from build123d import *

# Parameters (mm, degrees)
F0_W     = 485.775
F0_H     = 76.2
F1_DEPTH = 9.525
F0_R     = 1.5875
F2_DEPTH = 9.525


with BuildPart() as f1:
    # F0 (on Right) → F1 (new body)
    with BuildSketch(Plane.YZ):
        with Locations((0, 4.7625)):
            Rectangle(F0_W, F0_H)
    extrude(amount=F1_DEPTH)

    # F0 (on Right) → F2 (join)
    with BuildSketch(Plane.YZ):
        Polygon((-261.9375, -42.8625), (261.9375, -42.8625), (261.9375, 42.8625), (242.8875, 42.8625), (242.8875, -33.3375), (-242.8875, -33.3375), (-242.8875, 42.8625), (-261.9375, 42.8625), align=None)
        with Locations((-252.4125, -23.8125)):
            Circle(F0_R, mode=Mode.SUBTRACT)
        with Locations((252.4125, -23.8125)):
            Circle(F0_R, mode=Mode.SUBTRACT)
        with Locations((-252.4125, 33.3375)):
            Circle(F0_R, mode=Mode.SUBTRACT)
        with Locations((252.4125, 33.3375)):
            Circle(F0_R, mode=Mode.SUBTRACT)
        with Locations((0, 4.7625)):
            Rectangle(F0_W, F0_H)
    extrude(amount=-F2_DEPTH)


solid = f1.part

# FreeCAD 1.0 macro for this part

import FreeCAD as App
import Part
import Sketcher
from FreeCAD import Vector
Q = App.Units.Quantity

doc = App.newDocument("Part")
body = doc.addObject("PartDesign::Body", "Body")

sketch1 = doc.addObject("Sketcher::SketchObject", "Sketch")
body.addObject(sketch1)
sketch1.AttachmentSupport = (doc.YZ_Plane, [""])
sketch1.MapMode = "FlatFace"
sketch1.addGeometry([
    Part.LineSegment(Vector(-243, 43, 0), Vector(-243, -33, 0)),
    Part.LineSegment(Vector(-243, -33, 0), Vector(243, -33, 0)),
    Part.LineSegment(Vector(243, -33, 0), Vector(243, 43, 0)),
    Part.LineSegment(Vector(243, 43, 0), Vector(-243, 43, 0)),
], False)
sketch1.addConstraint([
    Sketcher.Constraint("Coincident", 0, 2, 1, 1),
    Sketcher.Constraint("Coincident", 1, 2, 2, 1),
    Sketcher.Constraint("Coincident", 2, 2, 3, 1),
    Sketcher.Constraint("Coincident", 3, 2, 0, 1),
    Sketcher.Constraint("Vertical", 0),
    Sketcher.Constraint("Horizontal", 1),
    Sketcher.Constraint("Vertical", 2),
    Sketcher.Constraint("Horizontal", 3),
    Sketcher.Constraint("DistanceY", 0, 2, 0, 1, Q("3 in")),
    Sketcher.Constraint("DistanceX", 1, 1, 1, 2, Q("19.125 in")),
    Sketcher.Constraint("DistanceX", 0, 2, -1, 1, Q("9.5625 in")),
    Sketcher.Constraint("DistanceY", 0, 2, -1, 1, Q("1.3125 in")),
])
pad1 = doc.addObject("PartDesign::Pad", "Pad")
body.addObject(pad1)
pad1.Profile = sketch1
pad1.Length = Q("0.375 in")

sketch2 = doc.addObject("Sketcher::SketchObject", "Sketch001")
body.addObject(sketch2)
sketch2.AttachmentSupport = (doc.YZ_Plane, [""])
sketch2.MapMode = "FlatFace"
sketch2.addGeometry([
    Part.LineSegment(Vector(-261.9, -42.9, 0), Vector(261.9, -42.9, 0)),
    Part.LineSegment(Vector(261.9, -42.9, 0), Vector(261.9, 42.9, 0)),
    Part.LineSegment(Vector(261.9, 42.9, 0), Vector(-261.9, 42.9, 0)),
    Part.LineSegment(Vector(-261.9, 42.9, 0), Vector(-261.9, -42.9, 0)),
    Part.Circle(Vector(-252.4, -23.8, 0), Vector(0, 0, 1), 1.6),
    Part.Circle(Vector(252.4, -23.8, 0), Vector(0, 0, 1), 1.6),
    Part.Circle(Vector(-252.4, 33.3, 0), Vector(0, 0, 1), 1.6),
    Part.Circle(Vector(252.4, 33.3, 0), Vector(0, 0, 1), 1.6),
], False)
sketch2.addConstraint([
    Sketcher.Constraint("Coincident", 0, 2, 1, 1),
    Sketcher.Constraint("Coincident", 1, 2, 2, 1),
    Sketcher.Constraint("Coincident", 2, 2, 3, 1),
    Sketcher.Constraint("Coincident", 3, 2, 0, 1),
    Sketcher.Constraint("Horizontal", 0),
    Sketcher.Constraint("Vertical", 1),
    Sketcher.Constraint("Horizontal", 2),
    Sketcher.Constraint("Vertical", 3),
    Sketcher.Constraint("Equal", 4, 5),
    Sketcher.Constraint("Equal", 5, 6),
    Sketcher.Constraint("Equal", 6, 7),
    Sketcher.Constraint("Symmetric", 0, 2, 2, 2, -1, 1),
    Sketcher.Constraint("Symmetric", 4, 3, 5, 3, -2),
    Sketcher.Constraint("Symmetric", 6, 3, 7, 3, -2),
    Sketcher.Constraint("Vertical", 4, 3, 6, 3),
    Sketcher.Constraint("Diameter", 4, Q("0.125 in")),
    Sketcher.Constraint("DistanceY", 0, 2, 7, 3, Q("3 in")),
    Sketcher.Constraint("DistanceX", 0, 1, 0, 2, Q("20.625 in")),
    Sketcher.Constraint("DistanceY", 1, 1, 1, 2, Q("3.375 in")),
    Sketcher.Constraint("DistanceY", 4, 3, 6, 3, Q("2.25 in")),
    Sketcher.Constraint("DistanceX", 4, 3, 0, 2, Q("20.25 in")),
])
pad2 = doc.addObject("PartDesign::Pad", "Pad001")
body.addObject(pad2)
pad2.Profile = sketch2
pad2.Length = Q("0.375 in")
pad2.Reversed = True

doc.recompute()
